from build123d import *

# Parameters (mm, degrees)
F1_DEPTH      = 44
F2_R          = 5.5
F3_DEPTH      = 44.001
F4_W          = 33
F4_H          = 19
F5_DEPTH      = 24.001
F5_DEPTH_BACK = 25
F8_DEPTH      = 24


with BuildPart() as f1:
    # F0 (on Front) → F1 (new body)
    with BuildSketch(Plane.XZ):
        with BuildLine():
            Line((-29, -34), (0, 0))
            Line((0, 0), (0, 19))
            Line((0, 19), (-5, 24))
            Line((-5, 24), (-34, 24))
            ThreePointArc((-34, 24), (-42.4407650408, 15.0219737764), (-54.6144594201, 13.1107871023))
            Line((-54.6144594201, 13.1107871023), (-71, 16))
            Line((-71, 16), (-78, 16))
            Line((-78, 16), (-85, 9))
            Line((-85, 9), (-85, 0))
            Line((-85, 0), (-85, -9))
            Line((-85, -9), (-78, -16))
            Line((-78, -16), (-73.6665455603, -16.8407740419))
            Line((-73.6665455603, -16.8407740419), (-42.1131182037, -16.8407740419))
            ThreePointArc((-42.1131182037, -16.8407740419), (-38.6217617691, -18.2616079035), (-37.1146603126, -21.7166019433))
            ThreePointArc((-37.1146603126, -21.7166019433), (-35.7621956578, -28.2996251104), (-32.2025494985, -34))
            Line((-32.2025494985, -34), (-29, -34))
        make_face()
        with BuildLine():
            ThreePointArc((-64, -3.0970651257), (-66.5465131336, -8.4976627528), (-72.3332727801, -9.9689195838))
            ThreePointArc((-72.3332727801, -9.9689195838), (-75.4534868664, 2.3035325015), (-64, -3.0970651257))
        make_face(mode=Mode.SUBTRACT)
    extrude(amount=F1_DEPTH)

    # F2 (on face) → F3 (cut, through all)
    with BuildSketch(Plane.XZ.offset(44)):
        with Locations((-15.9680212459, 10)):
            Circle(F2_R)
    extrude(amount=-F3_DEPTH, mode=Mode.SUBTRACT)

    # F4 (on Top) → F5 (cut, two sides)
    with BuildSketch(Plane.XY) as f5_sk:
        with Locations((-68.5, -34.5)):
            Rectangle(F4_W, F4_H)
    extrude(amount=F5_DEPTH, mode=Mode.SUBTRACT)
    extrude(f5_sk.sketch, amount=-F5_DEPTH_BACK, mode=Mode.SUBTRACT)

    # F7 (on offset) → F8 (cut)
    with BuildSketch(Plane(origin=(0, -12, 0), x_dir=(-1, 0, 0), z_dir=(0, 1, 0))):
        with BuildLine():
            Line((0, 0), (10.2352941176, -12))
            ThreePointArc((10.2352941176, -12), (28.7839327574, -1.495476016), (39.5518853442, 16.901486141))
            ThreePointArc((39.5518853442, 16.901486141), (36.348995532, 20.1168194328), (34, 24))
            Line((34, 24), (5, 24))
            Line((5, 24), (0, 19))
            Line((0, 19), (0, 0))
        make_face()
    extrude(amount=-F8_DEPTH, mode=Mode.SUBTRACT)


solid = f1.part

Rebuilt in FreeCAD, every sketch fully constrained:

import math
import FreeCAD as App
import Part
import Sketcher
from FreeCAD import Vector
Q = App.Units.Quantity

doc = App.newDocument("Part")
body = doc.addObject("PartDesign::Body", "Body")

# Sketch on XZ plane
sketch1 = doc.addObject("Sketcher::SketchObject", "Sketch")
body.addObject(sketch1)
sketch1.AttachmentSupport = (doc.XZ_Plane, [""])
sketch1.MapMode = "FlatFace"
sketch1.addGeometry([
    Part.LineSegment(Vector(-29, -34, 0), Vector(0, 0, 0)),  # 0
    Part.LineSegment(Vector(0, 0, 0), Vector(0, 19, 0)),  # 1
    Part.LineSegment(Vector(0, 19, 0), Vector(-5, 24, 0)),  # 2
    Part.LineSegment(Vector(-5, 24, 0), Vector(-34, 24, 0)),  # 3
    Part.ArcOfCircle(Part.Circle(Vector(-51.3, 31.8, 0), Vector(0, 0, 1), 19), math.radians(-100), math.radians(-24)),  # 4
    Part.LineSegment(Vector(-54.6, 13.1, 0), Vector(-71, 16, 0)),  # 5
    Part.LineSegment(Vector(-71, 16, 0), Vector(-78, 16, 0)),  # 6
    Part.LineSegment(Vector(-78, 16, 0), Vector(-85, 9, 0)),  # 7
    Part.LineSegment(Vector(-85, 9, 0), Vector(-85, -9, 0)),  # 8
    Part.LineSegment(Vector(-85, -9, 0), Vector(-78, -16, 0)),  # 9
    Part.LineSegment(Vector(-78, -16, 0), Vector(-73.7, -16.8, 0)),  # 10
    Part.LineSegment(Vector(-73.7, -16.8, 0), Vector(-42.1, -16.8, 0)),  # 11
    Part.ArcOfCircle(Part.Circle(Vector(-42.1, -21.8, 0), Vector(0, 0, 1), 5), math.radians(1), math.radians(90)),  # 12
    Part.ArcOfCircle(Part.Circle(Vector(-18.1, -21.2, 0), Vector(0, 0, 1), 19), math.radians(-179), math.radians(-138)),  # 13
    Part.LineSegment(Vector(-32.2, -34, 0), Vector(-29, -34, 0)),  # 14
    Part.ArcOfCircle(Part.Circle(Vector(-71, -3.1, 0), Vector(0, 0, 1), 7), math.radians(0), math.radians(259)),  # 15
    Part.ArcOfCircle(Part.Circle(Vector(-71, -3.1, 0), Vector(0, 0, 1), 7), math.radians(-101), math.radians(0)),  # 16
], False)
sketch1.addConstraint([
    Sketcher.Constraint("Coincident", 0, 2, 1, 1),
    Sketcher.Constraint("Coincident", 1, 2, 2, 1),
    Sketcher.Constraint("Coincident", 2, 2, 3, 1),
    Sketcher.Constraint("Coincident", 3, 2, 4, 2),
    Sketcher.Constraint("Tangent", 4, 1, 5, 1),
    Sketcher.Constraint("Coincident", 5, 2, 6, 1),
    Sketcher.Constraint("Coincident", 6, 2, 7, 1),
    Sketcher.Constraint("Coincident", 7, 2, 8, 1),
    Sketcher.Constraint("Coincident", 8, 2, 9, 1),
    Sketcher.Constraint("Coincident", 9, 2, 10, 1),
    Sketcher.Constraint("Coincident", 10, 2, 11, 1),
    Sketcher.Constraint("Tangent", 11, 2, 12, 2),
    Sketcher.Constraint("Tangent", 12, 1, 13, 1),
    Sketcher.Constraint("Coincident", 13, 2, 14, 1),
    Sketcher.Constraint("Coincident", 14, 2, 0, 1),
    Sketcher.Constraint("Tangent", 15, 1, 16, 2),
    Sketcher.Constraint("Coincident", 16, 1, 15, 2),
    Sketcher.Constraint("Vertical", 1),
    Sketcher.Constraint("Horizontal", 3),
    Sketcher.Constraint("Horizontal", 6),
    Sketcher.Constraint("Vertical", 8),
    Sketcher.Constraint("Horizontal", 11),
    Sketcher.Constraint("Horizontal", 14),
    Sketcher.Constraint("Coincident", 0, 2, -1, 1),
    Sketcher.Constraint("Equal", 4, 13),
    Sketcher.Constraint("Symmetric", 6, 2, 9, 2, -1),
    Sketcher.Constraint("Perpendicular", 2, 7),
    Sketcher.Constraint("Perpendicular", 7, 9),
    Sketcher.Constraint("Horizontal", 16, 3, 15, 1),
    Sketcher.Constraint("Vertical", 16, 3, 5, 2),
    Sketcher.Constraint("Equal", 7, 9),
    Sketcher.Constraint("Radius", 4, 19.0),
    Sketcher.Constraint("Radius", 12, 5.0),
    Sketcher.Constraint("Radius", 15, 7.0),
    Sketcher.Constraint("DistanceX", 3, 2, 3, 1, 29.0),
    Sketcher.Constraint("DistanceX", 6, 2, 6, 1, 7.0),
    Sketcher.Constraint("DistanceY", 1, 1, 1, 2, 19.0),
    Sketcher.Constraint("DistanceY", 8, 2, 8, 1, 18.0),
    Sketcher.Constraint("Angle", 5, Q("170 deg")),
    Sketcher.Constraint("DistanceX", 15, 3, -1, 1, 71.0),
    Sketcher.Constraint("DistanceX", 2, 2, -1, 1, 5.0),
    Sketcher.Constraint("DistanceY", -1, 1, 5, 2, 16.0),
    Sketcher.Constraint("DistanceY", 13, 2, -1, 1, 34.0),
    Sketcher.Constraint("DistanceX", 14, 2, -1, 1, 29.0),
    Sketcher.Constraint("DistanceX", 14, 1, 14, 2, 3.202549),
    Sketcher.Constraint("DistanceY", 12, 1, -1, 1, 21.716602),
    Sketcher.Constraint("DistanceY", 15, 3, 4, 3, 34.9192),
    Sketcher.Constraint("DistanceX", 11, 1, 11, 2, 31.553427),
    Sketcher.Constraint("DistanceX", 12, 3, -1, 1, 42.113118),
    Sketcher.Constraint("DistanceY", 16, 1, -1, 1, 9.96892),
])
pad1 = doc.addObject("PartDesign::Pad", "Pad")
body.addObject(pad1)
pad1.Profile = sketch1
pad1.Length = 44

# Sketch on XZ plane
sketch2 = doc.addObject("Sketcher::SketchObject", "Sketch001")
body.addObject(sketch2)
sketch2.AttachmentSupport = (doc.XZ_Plane, [""])
sketch2.MapMode = "FlatFace"
sketch2.AttachmentOffset = App.Placement(Vector(0, 0, 44), App.Rotation())
sketch2.addGeometry(Part.Circle(Vector(-16, 10, 0), Vector(0, 0, 1), 6), False)
sketch2.addConstraint([
    Sketcher.Constraint("Diameter", 0, 11.0),
    Sketcher.Constraint("DistanceY", -1, 1, 0, 3, 10.0),
    Sketcher.Constraint("DistanceX", 0, 3, -1, 1, 15.968021),
])
pocket1 = doc.addObject("PartDesign::Pocket", "Pocket")
body.addObject(pocket1)
pocket1.Profile = sketch2
pocket1.Type = "ThroughAll"

# Sketch on XY plane
sketch3 = doc.addObject("Sketcher::SketchObject", "Sketch002")
body.addObject(sketch3)
sketch3.AttachmentSupport = (doc.XY_Plane, [""])
sketch3.MapMode = "FlatFace"
sketch3.addGeometry([
    Part.LineSegment(Vector(-85, -25, 0), Vector(-85, -44, 0)),
    Part.LineSegment(Vector(-85, -44, 0), Vector(-52, -44, 0)),
    Part.LineSegment(Vector(-52, -44, 0), Vector(-52, -25, 0)),
    Part.LineSegment(Vector(-52, -25, 0), Vector(-85, -25, 0)),
], False)
sketch3.addConstraint([
    Sketcher.Constraint("Coincident", 0, 2, 1, 1),
    Sketcher.Constraint("Coincident", 1, 2, 2, 1),
    Sketcher.Constraint("Coincident", 2, 2, 3, 1),
    Sketcher.Constraint("Coincident", 3, 2, 0, 1),
    Sketcher.Constraint("Vertical", 0),
    Sketcher.Constraint("Horizontal", 1),
    Sketcher.Constraint("Vertical", 2),
    Sketcher.Constraint("Horizontal", 3),
    Sketcher.Constraint("DistanceX", 1, 1, 1, 2, 33.0),
    Sketcher.Constraint("DistanceY", 0, 2, 0, 1, 19.0),
    Sketcher.Constraint("DistanceX", 0, 2, -1, 1, 85.0),
    Sketcher.Constraint("DistanceY", 0, 2, -1, 1, 44.0),
])
pocket2 = doc.addObject("PartDesign::Pocket", "Pocket001")
body.addObject(pocket2)
pocket2.Profile = sketch3
pocket2.Type = "ThroughAll"
pocket2.Midplane = True

# Sketch on XZ plane
sketch4 = doc.addObject("Sketcher::SketchObject", "Sketch003")
body.addObject(sketch4)
sketch4.AttachmentSupport = (doc.XZ_Plane, [""])
sketch4.MapMode = "FlatFace"
sketch4.AttachmentOffset = App.Placement(Vector(0, 0, 12), App.Rotation())
sketch4.addGeometry([
    Part.LineSegment(Vector(0, 0, 0), Vector(-10, -12, 0)),  # 0
    Part.ArcOfCircle(Part.Circle(Vector(0, 28, 0), Vector(0, 0, 1), 41), math.radians(-165), math.radians(-104)),  # 1
    Part.ArcOfCircle(Part.Circle(Vector(-51, 32, 0), Vector(0, 0, 1), 19), math.radians(-52), math.radians(-24)),  # 2
    Part.LineSegment(Vector(-34, 24, 0), Vector(-5, 24, 0)),  # 3
    Part.LineSegment(Vector(-5, 24, 0), Vector(0, 19, 0)),  # 4
    Part.LineSegment(Vector(0, 19, 0), Vector(0, 0, 0)),  # 5
], False)
sketch4.addConstraint([
    Sketcher.Constraint("Coincident", 0, 2, 1, 2),
    Sketcher.Constraint("Coincident", 1, 1, 2, 1),
    Sketcher.Constraint("Coincident", 2, 2, 3, 1),
    Sketcher.Constraint("Coincident", 3, 2, 4, 1),
    Sketcher.Constraint("Coincident", 4, 2, 5, 1),
    Sketcher.Constraint("Coincident", 5, 2, 0, 1),
    Sketcher.Constraint("Horizontal", 3),
    Sketcher.Constraint("Vertical", 5),
    Sketcher.Constraint("Coincident", 5, 2, -1, 1),
    Sketcher.Constraint("PointOnObject", 1, 3, -2),
    Sketcher.Constraint("Radius", 1, 41.0),
    Sketcher.Constraint("Radius", 2, 19.0),
    Sketcher.Constraint("DistanceX", 3, 1, 3, 2, 29.0),
    Sketcher.Constraint("DistanceY", 5, 2, 5, 1, 19.0),
    Sketcher.Constraint("Angle", 4, Q("-45 deg")),
    Sketcher.Constraint("DistanceY", 0, 2, -1, 1, 12.0),
    Sketcher.Constraint("DistanceX", 2, 2, -1, 1, 34.0),
    Sketcher.Constraint("DistanceY", 1, 3, 2, 3, 4.120261),
    Sketcher.Constraint("DistanceX", 2, 3, 0, 2, 41.07985),
])
pocket3 = doc.addObject("PartDesign::Pocket", "Pocket002")
body.addObject(pocket3)
pocket3.Profile = sketch4
pocket3.Length = 24
pocket3.Reversed = True

doc.recompute()
